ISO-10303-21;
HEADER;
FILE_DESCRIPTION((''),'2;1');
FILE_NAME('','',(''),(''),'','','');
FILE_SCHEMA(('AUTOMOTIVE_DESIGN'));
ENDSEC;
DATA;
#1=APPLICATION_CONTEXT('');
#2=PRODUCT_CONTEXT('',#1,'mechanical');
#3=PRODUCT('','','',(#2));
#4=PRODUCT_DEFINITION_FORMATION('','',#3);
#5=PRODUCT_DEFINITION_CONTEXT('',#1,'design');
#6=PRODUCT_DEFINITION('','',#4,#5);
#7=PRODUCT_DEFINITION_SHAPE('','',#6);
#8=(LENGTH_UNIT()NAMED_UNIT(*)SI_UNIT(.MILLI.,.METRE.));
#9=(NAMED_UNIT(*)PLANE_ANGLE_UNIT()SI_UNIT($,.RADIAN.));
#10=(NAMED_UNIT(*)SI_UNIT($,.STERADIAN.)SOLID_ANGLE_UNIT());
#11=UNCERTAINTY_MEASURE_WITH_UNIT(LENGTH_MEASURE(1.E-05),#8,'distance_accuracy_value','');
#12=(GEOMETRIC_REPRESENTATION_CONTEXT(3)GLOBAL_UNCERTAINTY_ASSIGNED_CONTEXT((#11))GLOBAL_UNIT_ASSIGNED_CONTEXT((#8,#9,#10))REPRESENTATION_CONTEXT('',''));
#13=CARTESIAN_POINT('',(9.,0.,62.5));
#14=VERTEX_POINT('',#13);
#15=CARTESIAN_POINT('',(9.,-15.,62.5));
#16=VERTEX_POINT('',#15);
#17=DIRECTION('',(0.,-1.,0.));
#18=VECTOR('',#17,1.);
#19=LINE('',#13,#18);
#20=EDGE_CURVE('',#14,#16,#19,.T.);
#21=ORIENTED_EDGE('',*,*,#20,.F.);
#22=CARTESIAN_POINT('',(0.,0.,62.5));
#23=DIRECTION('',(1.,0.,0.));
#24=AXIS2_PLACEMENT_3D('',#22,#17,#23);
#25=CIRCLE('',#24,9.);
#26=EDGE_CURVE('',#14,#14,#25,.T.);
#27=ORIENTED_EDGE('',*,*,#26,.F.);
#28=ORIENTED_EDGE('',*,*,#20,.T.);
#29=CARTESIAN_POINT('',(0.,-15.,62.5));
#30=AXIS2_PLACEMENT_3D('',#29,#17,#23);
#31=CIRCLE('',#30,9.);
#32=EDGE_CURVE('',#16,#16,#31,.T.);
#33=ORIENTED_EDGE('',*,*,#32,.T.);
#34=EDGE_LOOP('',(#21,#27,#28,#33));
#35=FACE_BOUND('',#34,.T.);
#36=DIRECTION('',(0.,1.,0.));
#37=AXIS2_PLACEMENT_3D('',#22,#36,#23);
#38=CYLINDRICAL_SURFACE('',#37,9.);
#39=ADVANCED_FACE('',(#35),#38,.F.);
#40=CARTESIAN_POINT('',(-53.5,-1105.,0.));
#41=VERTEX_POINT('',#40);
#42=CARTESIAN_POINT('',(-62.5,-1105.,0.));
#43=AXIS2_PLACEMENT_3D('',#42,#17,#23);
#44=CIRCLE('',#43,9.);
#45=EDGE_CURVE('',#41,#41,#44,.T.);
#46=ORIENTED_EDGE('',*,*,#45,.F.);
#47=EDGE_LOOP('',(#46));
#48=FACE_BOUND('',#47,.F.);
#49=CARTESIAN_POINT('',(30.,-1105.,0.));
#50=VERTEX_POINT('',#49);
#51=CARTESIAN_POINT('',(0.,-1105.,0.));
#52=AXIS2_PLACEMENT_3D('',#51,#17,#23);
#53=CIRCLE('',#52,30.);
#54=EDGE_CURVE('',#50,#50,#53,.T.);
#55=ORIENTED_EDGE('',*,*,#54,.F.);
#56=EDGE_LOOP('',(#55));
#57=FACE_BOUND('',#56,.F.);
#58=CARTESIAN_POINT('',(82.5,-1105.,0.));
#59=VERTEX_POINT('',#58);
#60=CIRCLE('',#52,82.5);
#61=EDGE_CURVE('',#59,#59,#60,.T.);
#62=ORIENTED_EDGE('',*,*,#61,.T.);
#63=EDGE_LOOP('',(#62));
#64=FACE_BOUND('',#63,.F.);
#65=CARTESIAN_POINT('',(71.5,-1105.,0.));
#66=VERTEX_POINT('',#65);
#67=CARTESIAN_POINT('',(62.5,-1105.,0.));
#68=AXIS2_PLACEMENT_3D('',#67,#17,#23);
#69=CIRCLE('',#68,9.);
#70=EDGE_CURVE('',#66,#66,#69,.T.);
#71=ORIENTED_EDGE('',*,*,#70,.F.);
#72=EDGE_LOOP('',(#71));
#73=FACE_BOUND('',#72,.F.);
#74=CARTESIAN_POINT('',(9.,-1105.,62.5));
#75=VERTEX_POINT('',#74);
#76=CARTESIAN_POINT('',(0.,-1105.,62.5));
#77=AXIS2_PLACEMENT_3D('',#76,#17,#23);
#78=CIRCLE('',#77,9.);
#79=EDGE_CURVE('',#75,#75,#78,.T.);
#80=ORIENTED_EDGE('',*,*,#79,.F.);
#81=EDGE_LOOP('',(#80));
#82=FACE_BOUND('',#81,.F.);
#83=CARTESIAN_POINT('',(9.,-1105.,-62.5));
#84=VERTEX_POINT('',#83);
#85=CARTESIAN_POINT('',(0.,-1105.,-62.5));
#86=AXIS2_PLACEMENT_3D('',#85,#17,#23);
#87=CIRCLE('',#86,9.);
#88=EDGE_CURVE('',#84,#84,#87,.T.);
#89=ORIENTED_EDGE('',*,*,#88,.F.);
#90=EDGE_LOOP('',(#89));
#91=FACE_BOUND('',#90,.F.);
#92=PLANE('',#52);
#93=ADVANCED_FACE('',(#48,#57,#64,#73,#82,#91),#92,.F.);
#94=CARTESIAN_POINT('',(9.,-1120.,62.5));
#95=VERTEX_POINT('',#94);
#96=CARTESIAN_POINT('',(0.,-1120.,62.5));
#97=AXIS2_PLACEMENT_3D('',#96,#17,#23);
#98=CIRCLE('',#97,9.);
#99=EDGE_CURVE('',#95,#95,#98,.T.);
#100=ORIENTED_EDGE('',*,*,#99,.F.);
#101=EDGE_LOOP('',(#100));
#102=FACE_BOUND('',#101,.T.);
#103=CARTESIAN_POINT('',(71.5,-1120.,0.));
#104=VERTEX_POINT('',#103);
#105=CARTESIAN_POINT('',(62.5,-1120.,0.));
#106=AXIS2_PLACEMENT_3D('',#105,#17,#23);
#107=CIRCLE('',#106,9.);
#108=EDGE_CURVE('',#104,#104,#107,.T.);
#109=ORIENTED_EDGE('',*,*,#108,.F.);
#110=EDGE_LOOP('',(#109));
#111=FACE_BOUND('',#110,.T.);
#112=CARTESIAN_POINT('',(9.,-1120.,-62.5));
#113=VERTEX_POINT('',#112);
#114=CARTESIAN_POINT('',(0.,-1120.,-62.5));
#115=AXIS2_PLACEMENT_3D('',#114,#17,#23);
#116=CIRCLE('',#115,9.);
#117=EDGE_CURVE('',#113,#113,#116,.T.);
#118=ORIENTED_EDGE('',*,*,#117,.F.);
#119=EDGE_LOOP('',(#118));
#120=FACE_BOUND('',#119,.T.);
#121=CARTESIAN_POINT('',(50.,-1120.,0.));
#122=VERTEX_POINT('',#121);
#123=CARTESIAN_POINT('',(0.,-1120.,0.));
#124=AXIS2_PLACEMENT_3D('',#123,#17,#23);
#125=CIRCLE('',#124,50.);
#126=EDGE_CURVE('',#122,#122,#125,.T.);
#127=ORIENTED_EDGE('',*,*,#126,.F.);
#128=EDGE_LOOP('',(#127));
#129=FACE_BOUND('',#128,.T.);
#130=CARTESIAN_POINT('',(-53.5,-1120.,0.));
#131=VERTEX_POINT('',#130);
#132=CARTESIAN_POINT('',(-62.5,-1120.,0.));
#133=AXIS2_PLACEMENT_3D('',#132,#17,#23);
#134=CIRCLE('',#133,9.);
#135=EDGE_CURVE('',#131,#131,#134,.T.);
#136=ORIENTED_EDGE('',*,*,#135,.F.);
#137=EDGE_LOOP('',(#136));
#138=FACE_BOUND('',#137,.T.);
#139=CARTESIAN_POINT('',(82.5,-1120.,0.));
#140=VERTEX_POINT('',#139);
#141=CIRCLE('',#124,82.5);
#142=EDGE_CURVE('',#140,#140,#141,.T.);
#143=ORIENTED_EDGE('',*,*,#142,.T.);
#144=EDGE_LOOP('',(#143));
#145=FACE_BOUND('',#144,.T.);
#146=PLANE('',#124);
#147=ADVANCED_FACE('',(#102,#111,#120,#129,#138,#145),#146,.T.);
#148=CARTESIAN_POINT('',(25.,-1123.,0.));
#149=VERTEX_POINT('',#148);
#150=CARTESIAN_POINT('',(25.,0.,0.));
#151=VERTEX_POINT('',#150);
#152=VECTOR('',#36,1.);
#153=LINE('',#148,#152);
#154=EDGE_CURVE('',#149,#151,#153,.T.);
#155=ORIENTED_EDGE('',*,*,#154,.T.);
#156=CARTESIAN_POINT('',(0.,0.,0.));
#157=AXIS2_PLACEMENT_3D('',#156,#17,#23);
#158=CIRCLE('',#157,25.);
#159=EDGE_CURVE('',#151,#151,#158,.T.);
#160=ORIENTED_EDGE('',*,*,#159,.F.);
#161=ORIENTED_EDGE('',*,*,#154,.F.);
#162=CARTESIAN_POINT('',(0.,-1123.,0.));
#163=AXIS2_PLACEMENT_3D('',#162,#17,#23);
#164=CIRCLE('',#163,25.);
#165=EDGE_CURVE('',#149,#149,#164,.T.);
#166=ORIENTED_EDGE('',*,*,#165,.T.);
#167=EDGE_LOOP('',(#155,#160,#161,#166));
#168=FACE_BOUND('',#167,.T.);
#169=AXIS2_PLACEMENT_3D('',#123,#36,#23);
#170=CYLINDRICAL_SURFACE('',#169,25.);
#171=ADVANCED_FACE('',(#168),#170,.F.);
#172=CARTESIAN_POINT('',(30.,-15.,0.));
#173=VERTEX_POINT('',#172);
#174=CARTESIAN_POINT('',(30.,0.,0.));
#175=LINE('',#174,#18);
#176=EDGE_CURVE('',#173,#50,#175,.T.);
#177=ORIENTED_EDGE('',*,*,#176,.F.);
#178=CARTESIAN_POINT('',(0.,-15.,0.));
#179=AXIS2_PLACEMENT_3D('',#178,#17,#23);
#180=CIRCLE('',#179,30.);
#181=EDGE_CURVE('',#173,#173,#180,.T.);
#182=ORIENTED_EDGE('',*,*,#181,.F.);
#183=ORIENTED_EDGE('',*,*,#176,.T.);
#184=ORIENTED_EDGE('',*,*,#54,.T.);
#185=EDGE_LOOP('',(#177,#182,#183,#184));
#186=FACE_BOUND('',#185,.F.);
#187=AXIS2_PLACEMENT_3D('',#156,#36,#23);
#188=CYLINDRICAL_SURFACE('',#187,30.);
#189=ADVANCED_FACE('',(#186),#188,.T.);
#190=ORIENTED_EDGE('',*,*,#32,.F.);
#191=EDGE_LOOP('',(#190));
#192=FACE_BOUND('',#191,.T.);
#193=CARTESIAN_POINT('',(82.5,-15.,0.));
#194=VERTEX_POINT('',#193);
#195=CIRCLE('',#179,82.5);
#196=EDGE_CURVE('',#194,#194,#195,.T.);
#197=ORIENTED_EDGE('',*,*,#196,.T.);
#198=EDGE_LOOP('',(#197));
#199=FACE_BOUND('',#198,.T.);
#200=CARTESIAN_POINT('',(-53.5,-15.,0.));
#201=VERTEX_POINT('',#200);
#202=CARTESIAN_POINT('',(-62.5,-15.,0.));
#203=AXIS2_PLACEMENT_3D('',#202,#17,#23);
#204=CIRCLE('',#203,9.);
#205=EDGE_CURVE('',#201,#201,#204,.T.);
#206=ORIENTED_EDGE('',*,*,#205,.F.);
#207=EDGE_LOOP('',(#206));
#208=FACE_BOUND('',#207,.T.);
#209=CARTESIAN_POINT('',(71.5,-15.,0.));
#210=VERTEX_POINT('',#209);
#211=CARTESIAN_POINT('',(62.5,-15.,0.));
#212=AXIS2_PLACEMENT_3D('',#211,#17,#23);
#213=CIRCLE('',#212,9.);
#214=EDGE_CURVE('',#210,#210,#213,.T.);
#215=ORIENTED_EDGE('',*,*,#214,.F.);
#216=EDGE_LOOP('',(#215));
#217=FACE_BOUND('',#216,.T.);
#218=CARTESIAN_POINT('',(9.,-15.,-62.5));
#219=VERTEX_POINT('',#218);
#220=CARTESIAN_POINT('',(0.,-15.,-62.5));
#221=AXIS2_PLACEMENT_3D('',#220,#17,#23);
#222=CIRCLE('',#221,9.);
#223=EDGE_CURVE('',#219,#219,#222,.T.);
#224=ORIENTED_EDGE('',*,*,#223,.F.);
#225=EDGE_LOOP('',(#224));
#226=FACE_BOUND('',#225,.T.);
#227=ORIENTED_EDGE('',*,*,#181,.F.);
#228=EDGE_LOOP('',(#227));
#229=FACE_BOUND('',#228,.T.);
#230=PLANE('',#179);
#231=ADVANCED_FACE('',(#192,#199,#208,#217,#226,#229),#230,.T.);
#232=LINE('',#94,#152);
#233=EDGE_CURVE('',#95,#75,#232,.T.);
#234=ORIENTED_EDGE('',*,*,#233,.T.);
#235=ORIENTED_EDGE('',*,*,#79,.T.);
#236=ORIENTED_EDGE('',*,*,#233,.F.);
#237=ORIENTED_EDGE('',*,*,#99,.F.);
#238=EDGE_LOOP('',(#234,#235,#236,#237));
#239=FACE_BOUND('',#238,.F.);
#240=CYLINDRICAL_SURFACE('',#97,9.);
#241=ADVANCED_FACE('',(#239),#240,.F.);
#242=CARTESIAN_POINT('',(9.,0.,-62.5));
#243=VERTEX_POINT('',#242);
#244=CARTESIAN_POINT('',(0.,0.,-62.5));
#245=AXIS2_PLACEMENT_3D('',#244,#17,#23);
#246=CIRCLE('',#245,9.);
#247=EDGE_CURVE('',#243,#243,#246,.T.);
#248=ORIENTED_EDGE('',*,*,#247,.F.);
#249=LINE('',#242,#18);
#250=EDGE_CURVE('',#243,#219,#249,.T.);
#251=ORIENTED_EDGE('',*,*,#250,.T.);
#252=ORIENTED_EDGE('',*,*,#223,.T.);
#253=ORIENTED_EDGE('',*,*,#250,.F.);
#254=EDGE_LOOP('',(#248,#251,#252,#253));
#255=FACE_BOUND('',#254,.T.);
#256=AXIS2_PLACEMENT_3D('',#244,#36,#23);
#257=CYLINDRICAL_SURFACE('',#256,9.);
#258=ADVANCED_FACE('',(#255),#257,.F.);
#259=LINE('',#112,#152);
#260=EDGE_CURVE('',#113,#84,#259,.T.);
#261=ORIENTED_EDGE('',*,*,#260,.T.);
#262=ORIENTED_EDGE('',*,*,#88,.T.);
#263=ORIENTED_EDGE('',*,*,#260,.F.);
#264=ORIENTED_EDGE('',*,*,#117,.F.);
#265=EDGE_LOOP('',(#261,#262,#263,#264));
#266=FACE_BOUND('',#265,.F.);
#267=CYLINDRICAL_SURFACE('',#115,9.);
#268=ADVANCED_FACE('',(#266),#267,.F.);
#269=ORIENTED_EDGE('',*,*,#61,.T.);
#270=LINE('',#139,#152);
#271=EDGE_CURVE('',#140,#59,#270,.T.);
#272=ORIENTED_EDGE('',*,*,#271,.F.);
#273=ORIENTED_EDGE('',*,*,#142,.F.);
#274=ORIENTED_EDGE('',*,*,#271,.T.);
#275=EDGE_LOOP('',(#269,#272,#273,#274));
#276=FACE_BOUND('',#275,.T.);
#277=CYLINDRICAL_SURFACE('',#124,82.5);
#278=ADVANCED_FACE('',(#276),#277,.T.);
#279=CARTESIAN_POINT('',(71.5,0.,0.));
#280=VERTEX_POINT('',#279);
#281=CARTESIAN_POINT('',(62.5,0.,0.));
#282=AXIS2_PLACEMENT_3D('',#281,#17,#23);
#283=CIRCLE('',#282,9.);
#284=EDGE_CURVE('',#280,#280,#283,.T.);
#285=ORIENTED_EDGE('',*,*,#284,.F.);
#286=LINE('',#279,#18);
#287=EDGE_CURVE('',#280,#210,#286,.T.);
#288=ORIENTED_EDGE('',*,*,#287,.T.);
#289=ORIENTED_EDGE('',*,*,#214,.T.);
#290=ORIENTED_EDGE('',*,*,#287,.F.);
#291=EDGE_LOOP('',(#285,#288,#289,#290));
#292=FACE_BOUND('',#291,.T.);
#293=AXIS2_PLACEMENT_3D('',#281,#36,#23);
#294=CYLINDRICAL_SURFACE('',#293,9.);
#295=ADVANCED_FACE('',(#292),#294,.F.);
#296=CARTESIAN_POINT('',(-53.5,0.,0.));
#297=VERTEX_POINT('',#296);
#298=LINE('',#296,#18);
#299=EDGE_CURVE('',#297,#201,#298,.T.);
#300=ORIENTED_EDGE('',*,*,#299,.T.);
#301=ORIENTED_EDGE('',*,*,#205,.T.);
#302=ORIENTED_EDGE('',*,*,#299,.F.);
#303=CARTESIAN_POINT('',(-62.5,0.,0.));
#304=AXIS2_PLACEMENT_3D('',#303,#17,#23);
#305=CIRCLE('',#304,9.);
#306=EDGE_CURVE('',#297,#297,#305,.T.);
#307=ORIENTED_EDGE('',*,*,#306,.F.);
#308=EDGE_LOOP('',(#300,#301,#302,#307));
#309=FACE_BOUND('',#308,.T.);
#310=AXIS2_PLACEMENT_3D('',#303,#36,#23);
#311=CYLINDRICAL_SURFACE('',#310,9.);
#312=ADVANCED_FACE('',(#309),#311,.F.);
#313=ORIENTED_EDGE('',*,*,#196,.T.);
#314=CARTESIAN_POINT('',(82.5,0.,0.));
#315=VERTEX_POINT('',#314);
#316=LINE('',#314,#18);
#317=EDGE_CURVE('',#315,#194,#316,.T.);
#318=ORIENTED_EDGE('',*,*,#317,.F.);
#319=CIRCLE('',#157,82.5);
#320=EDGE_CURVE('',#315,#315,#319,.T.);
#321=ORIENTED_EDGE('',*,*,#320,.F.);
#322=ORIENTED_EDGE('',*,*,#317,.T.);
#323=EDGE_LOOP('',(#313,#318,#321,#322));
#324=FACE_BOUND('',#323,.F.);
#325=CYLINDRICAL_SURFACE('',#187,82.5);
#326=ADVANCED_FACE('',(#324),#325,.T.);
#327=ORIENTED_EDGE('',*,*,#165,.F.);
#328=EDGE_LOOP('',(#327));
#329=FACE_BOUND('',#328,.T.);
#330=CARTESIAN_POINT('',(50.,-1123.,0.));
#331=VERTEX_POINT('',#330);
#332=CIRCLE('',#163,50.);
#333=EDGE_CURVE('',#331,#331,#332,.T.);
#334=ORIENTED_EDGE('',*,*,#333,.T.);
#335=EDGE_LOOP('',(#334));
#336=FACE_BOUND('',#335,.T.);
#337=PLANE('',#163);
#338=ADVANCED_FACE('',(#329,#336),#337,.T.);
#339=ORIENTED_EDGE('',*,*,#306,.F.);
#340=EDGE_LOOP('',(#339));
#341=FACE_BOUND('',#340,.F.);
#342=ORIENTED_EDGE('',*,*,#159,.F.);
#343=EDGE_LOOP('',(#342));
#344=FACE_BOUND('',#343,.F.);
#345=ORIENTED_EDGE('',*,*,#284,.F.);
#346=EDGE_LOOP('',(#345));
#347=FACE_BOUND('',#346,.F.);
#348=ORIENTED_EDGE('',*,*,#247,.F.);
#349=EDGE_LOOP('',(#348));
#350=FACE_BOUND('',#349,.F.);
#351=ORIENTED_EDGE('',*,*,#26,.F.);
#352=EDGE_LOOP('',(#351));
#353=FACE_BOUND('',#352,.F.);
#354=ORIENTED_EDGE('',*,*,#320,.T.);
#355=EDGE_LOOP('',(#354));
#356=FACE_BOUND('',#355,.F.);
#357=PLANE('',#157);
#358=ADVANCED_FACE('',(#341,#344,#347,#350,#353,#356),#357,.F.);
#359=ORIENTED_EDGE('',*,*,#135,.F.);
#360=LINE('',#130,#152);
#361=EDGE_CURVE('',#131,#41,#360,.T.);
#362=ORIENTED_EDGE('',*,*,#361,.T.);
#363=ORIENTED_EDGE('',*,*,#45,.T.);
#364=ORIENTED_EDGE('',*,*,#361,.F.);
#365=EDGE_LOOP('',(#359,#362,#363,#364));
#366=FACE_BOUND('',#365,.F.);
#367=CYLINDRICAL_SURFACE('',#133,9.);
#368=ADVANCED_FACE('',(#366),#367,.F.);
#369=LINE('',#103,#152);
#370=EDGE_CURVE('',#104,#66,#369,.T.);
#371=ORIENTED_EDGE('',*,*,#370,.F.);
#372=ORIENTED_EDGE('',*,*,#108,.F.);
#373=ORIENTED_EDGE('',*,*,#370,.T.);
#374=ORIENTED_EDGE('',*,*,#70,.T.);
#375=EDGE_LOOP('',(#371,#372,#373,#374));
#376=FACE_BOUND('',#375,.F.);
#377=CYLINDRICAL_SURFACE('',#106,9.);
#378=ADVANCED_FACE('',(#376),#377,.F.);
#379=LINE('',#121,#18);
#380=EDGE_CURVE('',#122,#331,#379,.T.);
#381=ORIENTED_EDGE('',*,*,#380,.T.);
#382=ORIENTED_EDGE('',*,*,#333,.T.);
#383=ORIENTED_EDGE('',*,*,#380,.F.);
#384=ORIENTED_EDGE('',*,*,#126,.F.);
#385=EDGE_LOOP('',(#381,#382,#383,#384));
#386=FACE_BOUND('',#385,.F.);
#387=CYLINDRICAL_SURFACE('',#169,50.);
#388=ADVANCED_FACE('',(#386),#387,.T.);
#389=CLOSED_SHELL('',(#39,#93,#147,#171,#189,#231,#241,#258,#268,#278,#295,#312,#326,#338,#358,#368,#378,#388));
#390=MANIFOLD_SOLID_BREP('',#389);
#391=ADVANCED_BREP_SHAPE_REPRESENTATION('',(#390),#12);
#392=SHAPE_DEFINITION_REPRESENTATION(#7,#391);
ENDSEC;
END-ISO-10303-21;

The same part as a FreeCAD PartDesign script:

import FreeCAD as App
import Part
import Sketcher

V = App.Vector
Q = App.Units.Quantity

doc = App.newDocument("Part")
body = doc.addObject("PartDesign::Body", "Body")

# Sketch on XZ plane
sketch1 = body.newObject("Sketcher::SketchObject", "Sketch")
sketch1.AttachmentSupport = (doc.getObject("XZ_Plane"), [""])
sketch1.MapMode = "FlatFace"
sketch1.addGeometry(Part.Circle(V(0, 0, 0), V(0, 0, 1), 30), False)
sketch1.addGeometry(Part.Circle(V(0, 0, 0), V(0, 0, 1), 25), False)
sketch1.addConstraint(Sketcher.Constraint("Coincident", 0, 3, -1, 1))
sketch1.addConstraint(Sketcher.Constraint("Coincident", 1, 3, -1, 1))
sketch1.addConstraint(Sketcher.Constraint("Diameter", 0, Q("60 mm")))
sketch1.addConstraint(Sketcher.Constraint("Diameter", 1, Q("50 mm")))
pad1 = body.newObject("PartDesign::Pad", "Pad")
pad1.Profile = sketch1
pad1.Length = 1120

# Sketch on XZ plane
sketch2 = body.newObject("Sketcher::SketchObject", "Sketch001")
sketch2.AttachmentSupport = (doc.getObject("XZ_Plane"), [""])
sketch2.MapMode = "FlatFace"
sketch2.addGeometry(Part.Circle(V(0, 0, 0), V(0, 0, 1), 82), False)
sketch2.addGeometry(Part.Circle(V(0, -62, 0), V(0, 0, 1), 9), False)
sketch2.addGeometry(Part.Circle(V(-62, 0, 0), V(0, 0, 1), 9), False)
sketch2.addGeometry(Part.Circle(V(0, 0, 0), V(0, 0, 1), 30), False)
sketch2.addGeometry(Part.Circle(V(62, 0, 0), V(0, 0, 1), 9), False)
sketch2.addGeometry(Part.Circle(V(0, 62, 0), V(0, 0, 1), 9), False)
sketch2.addConstraint(Sketcher.Constraint("Coincident", 0, 3, -1, 1))
sketch2.addConstraint(Sketcher.Constraint("Coincident", 3, 3, -1, 1))
sketch2.addConstraint(Sketcher.Constraint("Equal", 1, 2))
sketch2.addConstraint(Sketcher.Constraint("Equal", 2, 4))
sketch2.addConstraint(Sketcher.Constraint("Equal", 4, 5))
sketch2.addConstraint(Sketcher.Constraint("Symmetric", 2, 3, 4, 3, -1, 1))
sketch2.addConstraint(Sketcher.Constraint("Symmetric", 1, 3, 5, 3, -1, 1))
sketch2.addConstraint(Sketcher.Constraint("PointOnObject", 1, 3, -2))
sketch2.addConstraint(Sketcher.Constraint("PointOnObject", 2, 3, -1))
sketch2.addConstraint(Sketcher.Constraint("Diameter", 0, Q("165 mm")))
sketch2.addConstraint(Sketcher.Constraint("Diameter", 1, Q("18 mm")))
sketch2.addConstraint(Sketcher.Constraint("Diameter", 3, Q("60 mm")))
sketch2.addConstraint(Sketcher.Constraint("DistanceX", 2, 3, 4, 3, Q("125 mm")))
sketch2.addConstraint(Sketcher.Constraint("DistanceY", 1, 3, 5, 3, Q("125 mm")))
pad2 = body.newObject("PartDesign::Pad", "Pad001")
pad2.Profile = sketch2
pad2.Length = 15

# Sketch on XZ plane
sketch3 = body.newObject("Sketcher::SketchObject", "Sketch002")
sketch3.AttachmentSupport = (doc.getObject("XZ_Plane"), [""])
sketch3.MapMode = "FlatFace"
sketch3.AttachmentOffset = App.Placement(V(0, 0, 1120), App.Rotation())
sketch3.addGeometry(Part.Circle(V(0, 0, 0), V(0, 0, 1), 82), False)
sketch3.addGeometry(Part.Circle(V(0, -62, 0), V(0, 0, 1), 9), False)
sketch3.addGeometry(Part.Circle(V(-62, 0, 0), V(0, 0, 1), 9), False)
sketch3.addGeometry(Part.Circle(V(0, 0, 0), V(0, 0, 1), 30), False)
sketch3.addGeometry(Part.Circle(V(62, 0, 0), V(0, 0, 1), 9), False)
sketch3.addGeometry(Part.Circle(V(0, 62, 0), V(0, 0, 1), 9), False)
sketch3.addConstraint(Sketcher.Constraint("Coincident", 0, 3, -1, 1))
sketch3.addConstraint(Sketcher.Constraint("Coincident", 3, 3, -1, 1))
sketch3.addConstraint(Sketcher.Constraint("Equal", 1, 2))
sketch3.addConstraint(Sketcher.Constraint("Equal", 2, 4))
sketch3.addConstraint(Sketcher.Constraint("Equal", 4, 5))
sketch3.addConstraint(Sketcher.Constraint("Symmetric", 2, 3, 4, 3, -1, 1))
sketch3.addConstraint(Sketcher.Constraint("Symmetric", 1, 3, 5, 3, -1, 1))
sketch3.addConstraint(Sketcher.Constraint("PointOnObject", 1, 3, -2))
sketch3.addConstraint(Sketcher.Constraint("PointOnObject", 2, 3, -1))
sketch3.addConstraint(Sketcher.Constraint("Diameter", 0, Q("165 mm")))
sketch3.addConstraint(Sketcher.Constraint("Diameter", 1, Q("18 mm")))
sketch3.addConstraint(Sketcher.Constraint("Diameter", 3, Q("60 mm")))
sketch3.addConstraint(Sketcher.Constraint("DistanceX", 2, 3, 4, 3, Q("125 mm")))
sketch3.addConstraint(Sketcher.Constraint("DistanceY", 1, 3, 5, 3, Q("125 mm")))
pad3 = body.newObject("PartDesign::Pad", "Pad002")
pad3.Profile = sketch3
pad3.Length = 15
pad3.Reversed = True

# Sketch on XZ plane
sketch4 = body.newObject("Sketcher::SketchObject", "Sketch003")
sketch4.AttachmentSupport = (doc.getObject("XZ_Plane"), [""])
sketch4.MapMode = "FlatFace"
sketch4.AttachmentOffset = App.Placement(V(0, 0, 1120), App.Rotation())
sketch4.addGeometry(Part.Circle(V(0, 0, 0), V(0, 0, 1), 50), False)
sketch4.addGeometry(Part.Circle(V(0, 0, 0), V(0, 0, 1), 25), False)
sketch4.addConstraint(Sketcher.Constraint("Coincident", 0, 3, -1, 1))
sketch4.addConstraint(Sketcher.Constraint("Coincident", 1, 3, -1, 1))
sketch4.addConstraint(Sketcher.Constraint("Diameter", 0, Q("100 mm")))
sketch4.addConstraint(Sketcher.Constraint("Diameter", 1, Q("50 mm")))
pad4 = body.newObject("PartDesign::Pad", "Pad003")
pad4.Profile = sketch4
pad4.Length = 3

doc.recompute()
